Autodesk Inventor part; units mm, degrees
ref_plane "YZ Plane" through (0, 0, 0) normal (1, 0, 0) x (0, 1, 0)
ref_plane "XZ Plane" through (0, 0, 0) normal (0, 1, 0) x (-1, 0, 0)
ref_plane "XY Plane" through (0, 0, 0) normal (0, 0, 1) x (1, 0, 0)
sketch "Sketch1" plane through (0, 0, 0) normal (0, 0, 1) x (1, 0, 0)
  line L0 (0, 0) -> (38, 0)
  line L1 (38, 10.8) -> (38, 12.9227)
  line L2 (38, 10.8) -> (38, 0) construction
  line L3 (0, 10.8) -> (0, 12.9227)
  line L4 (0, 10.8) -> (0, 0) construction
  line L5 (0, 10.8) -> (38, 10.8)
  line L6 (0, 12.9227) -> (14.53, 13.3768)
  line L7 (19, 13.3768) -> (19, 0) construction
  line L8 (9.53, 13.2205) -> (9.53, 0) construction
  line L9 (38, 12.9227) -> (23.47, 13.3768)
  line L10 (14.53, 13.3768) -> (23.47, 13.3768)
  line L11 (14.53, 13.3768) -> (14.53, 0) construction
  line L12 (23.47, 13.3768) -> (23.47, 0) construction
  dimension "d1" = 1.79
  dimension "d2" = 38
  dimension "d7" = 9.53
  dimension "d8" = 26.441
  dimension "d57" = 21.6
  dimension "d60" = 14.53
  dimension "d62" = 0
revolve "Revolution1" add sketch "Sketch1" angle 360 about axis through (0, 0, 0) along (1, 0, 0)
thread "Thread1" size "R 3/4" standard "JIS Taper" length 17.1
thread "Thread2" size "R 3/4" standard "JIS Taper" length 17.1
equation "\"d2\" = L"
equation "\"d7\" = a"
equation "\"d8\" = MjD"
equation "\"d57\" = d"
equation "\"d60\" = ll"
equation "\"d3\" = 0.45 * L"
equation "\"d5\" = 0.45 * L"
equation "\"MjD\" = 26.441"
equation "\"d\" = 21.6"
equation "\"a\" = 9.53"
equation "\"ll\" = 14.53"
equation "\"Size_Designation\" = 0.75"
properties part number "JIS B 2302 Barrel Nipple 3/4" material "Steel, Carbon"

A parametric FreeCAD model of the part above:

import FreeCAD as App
import Part
import Sketcher

V = App.Vector
Q = App.Units.Quantity

doc = App.newDocument("Part")
params = doc.addObject("Spreadsheet::Sheet", "Params")
for row, (alias, value) in enumerate([
    ("sketch1_width", "38 mm"),
    ("revolution_angle", "360 deg"),
], start=1):
    params.set(f"A{row}", alias)
    params.set(f"B{row}", "=" + value)
    params.setAlias(f"B{row}", alias)

body = doc.addObject("PartDesign::Body", "Body")

sketch1 = body.newObject("Sketcher::SketchObject", "Sketch")
sketch1.AttachmentSupport = (doc.getObject("XY_Plane"), [""])
sketch1.MapMode = "FlatFace"
sketch1.addGeometry([
    Part.LineSegment(V(0, 10.8, 0), V(38, 10.8, 0)),
    Part.LineSegment(V(38, 10.8, 0), V(38, 12.9227, 0)),
    Part.LineSegment(V(38, 12.9227, 0), V(23.47, 13.3768, 0)),
    Part.LineSegment(V(23.47, 13.3768, 0), V(14.53, 13.3768, 0)),
    Part.LineSegment(V(14.53, 13.3768, 0), V(0, 12.9227, 0)),
    Part.LineSegment(V(0, 12.9227, 0), V(0, 10.8, 0)),
], False)
sketch1.addConstraint([
    Sketcher.Constraint("Coincident", 0, 2, 1, 1),
    Sketcher.Constraint("Coincident", 1, 2, 2, 1),
    Sketcher.Constraint("Coincident", 2, 2, 3, 1),
    Sketcher.Constraint("Coincident", 3, 2, 4, 1),
    Sketcher.Constraint("Coincident", 4, 2, 5, 1),
    Sketcher.Constraint("Coincident", 5, 2, 0, 1),
    Sketcher.Constraint("Horizontal", 0),
    Sketcher.Constraint("Vertical", 1),
    Sketcher.Constraint("Horizontal", 3),
    Sketcher.Constraint("Vertical", 5),
    Sketcher.Constraint("PointOnObject", 4, 2, -2),
    Sketcher.Constraint("Horizontal", 1, 2, 4, 2),
    Sketcher.Constraint("Equal", 2, 4),
    Sketcher.Constraint("DistanceX", 0, 1, 0, 2, 38.0),
    Sketcher.Constraint("DistanceX", -1, 1, 3, 2, 14.53),
    Sketcher.Constraint("DistanceY", -1, 1, 0, 2, 10.8),
    Sketcher.Constraint("Angle", 2, Q("178.21 deg")),
    Sketcher.Constraint("DistanceY", 1, 1, 1, 2, 2.1227),
])
sketch1.setExpression("Constraints[13]", "Params.sketch1_width")
revolution = body.newObject("PartDesign::Revolution", "Revolution")
revolution.Profile = sketch1
revolution.ReferenceAxis = (sketch1, ["H_Axis"])
revolution.setExpression("Angle", "Params.revolution_angle")

doc.recompute()
